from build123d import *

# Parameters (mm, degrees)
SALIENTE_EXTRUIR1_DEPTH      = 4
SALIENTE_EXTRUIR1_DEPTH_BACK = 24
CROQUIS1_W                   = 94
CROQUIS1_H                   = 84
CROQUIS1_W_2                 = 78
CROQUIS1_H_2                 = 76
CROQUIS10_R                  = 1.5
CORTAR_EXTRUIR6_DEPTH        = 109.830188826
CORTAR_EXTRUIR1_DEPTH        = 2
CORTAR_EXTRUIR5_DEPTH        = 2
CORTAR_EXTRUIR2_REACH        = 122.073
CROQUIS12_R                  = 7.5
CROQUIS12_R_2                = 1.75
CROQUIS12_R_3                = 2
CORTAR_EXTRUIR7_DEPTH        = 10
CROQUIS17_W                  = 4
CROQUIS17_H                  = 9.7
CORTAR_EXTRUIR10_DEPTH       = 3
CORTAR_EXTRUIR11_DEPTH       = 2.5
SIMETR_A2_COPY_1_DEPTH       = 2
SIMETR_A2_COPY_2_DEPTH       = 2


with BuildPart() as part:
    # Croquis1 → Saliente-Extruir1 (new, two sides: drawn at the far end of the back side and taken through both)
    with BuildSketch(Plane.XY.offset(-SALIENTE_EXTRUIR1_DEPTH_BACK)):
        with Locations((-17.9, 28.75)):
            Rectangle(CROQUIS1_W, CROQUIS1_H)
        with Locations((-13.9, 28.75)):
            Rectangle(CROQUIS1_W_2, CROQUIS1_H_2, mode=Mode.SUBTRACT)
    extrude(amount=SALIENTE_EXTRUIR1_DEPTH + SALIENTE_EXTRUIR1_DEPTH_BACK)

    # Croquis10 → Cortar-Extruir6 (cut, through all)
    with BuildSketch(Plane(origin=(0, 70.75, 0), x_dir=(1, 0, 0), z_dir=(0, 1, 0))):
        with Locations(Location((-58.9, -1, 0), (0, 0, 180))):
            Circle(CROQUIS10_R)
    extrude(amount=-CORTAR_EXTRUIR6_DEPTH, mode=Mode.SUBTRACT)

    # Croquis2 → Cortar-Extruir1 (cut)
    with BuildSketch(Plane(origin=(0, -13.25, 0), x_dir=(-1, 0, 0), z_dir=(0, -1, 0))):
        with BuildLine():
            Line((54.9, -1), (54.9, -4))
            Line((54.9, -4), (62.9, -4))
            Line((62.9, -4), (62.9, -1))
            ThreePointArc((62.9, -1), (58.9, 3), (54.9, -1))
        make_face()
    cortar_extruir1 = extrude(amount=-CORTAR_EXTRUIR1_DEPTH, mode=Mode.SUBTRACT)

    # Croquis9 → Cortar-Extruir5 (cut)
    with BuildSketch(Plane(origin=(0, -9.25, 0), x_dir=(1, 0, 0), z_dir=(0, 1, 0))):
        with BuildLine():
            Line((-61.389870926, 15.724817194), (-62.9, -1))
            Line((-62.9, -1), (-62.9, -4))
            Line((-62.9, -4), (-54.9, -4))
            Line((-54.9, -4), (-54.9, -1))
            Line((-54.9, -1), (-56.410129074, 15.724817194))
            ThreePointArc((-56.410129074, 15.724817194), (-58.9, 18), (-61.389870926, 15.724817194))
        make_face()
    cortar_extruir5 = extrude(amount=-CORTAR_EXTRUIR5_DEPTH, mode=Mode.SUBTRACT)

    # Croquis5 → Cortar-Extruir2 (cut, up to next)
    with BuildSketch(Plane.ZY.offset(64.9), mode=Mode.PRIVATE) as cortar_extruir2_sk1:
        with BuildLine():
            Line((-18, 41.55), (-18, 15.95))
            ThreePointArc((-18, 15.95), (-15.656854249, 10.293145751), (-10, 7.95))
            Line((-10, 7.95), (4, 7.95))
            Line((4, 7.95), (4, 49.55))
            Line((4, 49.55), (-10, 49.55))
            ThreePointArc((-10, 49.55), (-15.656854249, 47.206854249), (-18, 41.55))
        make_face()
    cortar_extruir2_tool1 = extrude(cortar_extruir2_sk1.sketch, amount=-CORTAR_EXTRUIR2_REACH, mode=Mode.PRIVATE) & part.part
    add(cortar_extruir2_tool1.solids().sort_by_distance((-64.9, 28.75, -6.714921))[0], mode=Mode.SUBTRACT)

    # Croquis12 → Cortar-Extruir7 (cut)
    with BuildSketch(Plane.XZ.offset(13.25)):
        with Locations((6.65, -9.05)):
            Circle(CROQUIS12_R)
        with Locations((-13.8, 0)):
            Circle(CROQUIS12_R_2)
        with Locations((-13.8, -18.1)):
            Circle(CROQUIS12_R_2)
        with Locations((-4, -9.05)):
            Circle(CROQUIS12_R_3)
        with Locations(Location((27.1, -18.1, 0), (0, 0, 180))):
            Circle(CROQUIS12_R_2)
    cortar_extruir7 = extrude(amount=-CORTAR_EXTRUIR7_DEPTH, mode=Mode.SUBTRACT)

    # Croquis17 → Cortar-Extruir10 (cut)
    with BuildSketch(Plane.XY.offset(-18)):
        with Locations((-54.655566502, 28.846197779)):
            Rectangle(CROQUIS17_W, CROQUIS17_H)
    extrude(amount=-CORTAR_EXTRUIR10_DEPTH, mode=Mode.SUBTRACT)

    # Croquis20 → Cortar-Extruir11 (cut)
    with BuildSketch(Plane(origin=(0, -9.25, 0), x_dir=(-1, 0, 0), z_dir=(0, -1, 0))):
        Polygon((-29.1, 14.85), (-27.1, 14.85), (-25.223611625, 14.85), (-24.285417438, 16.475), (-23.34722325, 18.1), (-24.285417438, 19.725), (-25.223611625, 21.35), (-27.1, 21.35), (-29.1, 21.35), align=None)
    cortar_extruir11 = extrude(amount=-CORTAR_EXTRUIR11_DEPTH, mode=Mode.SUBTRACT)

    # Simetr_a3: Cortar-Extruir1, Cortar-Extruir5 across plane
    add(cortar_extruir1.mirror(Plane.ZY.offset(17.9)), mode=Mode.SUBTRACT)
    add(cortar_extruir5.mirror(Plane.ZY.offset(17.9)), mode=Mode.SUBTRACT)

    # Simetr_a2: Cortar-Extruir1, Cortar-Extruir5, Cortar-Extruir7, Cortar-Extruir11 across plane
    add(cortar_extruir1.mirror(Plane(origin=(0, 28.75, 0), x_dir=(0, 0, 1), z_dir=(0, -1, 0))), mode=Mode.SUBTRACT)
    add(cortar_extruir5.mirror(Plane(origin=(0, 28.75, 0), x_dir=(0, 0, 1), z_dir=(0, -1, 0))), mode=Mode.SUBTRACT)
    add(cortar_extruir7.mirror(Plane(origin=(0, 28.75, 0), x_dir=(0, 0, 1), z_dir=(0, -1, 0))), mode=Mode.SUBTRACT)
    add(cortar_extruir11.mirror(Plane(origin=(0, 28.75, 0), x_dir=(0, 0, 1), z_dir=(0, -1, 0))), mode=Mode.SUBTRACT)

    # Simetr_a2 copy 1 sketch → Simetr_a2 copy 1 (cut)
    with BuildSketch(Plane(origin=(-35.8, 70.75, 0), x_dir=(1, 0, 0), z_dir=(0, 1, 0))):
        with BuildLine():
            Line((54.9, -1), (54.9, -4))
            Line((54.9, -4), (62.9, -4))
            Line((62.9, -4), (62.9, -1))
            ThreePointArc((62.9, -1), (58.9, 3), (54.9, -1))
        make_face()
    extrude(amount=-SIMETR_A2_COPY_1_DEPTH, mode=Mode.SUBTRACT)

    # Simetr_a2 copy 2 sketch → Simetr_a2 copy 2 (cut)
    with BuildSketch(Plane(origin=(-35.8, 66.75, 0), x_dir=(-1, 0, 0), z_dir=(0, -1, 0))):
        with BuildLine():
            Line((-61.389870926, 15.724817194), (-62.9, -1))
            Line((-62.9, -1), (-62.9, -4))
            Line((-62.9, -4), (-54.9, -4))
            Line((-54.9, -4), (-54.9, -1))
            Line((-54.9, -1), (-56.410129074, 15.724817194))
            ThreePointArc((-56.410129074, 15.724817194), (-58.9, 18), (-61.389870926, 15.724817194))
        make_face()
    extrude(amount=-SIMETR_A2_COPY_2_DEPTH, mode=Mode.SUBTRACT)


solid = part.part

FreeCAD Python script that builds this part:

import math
import FreeCAD as App
import Part
import Sketcher
from FreeCAD import Vector
Q = App.Units.Quantity


def add_polygon(sketch, points):
    """Adds a closed chain of lines whose ends are joined by coincident constraints."""
    first, n = sketch.GeometryCount, len(points)
    for a, b in zip(points, points[1:] + points[:1]):
        sketch.addGeometry(Part.LineSegment(App.Vector(*a, 0), App.Vector(*b, 0)), False)
    for i in range(n):
        sketch.addConstraint(Sketcher.Constraint("Coincident", first + i, 2, first + (i + 1) % n, 1))

doc = App.newDocument("Part")
body = doc.addObject("PartDesign::Body", "Body")

sketch1 = body.newObject("Sketcher::SketchObject", "Sketch")
sketch1.AttachmentSupport = (doc.getObject("XY_Plane"), [""])
sketch1.MapMode = "FlatFace"
add_polygon(sketch1, [(-64.9, 70.75), (-64.9, -13.25), (29.1, -13.25), (29.1, 70.75)])
add_polygon(sketch1, [(25.1, -9.25), (-52.9, -9.25), (-52.9, 66.75), (25.1, 66.75)])
sketch1.addConstraint(Sketcher.Constraint("Vertical", 0))
sketch1.addConstraint(Sketcher.Constraint("Horizontal", 1))
sketch1.addConstraint(Sketcher.Constraint("Vertical", 2))
sketch1.addConstraint(Sketcher.Constraint("Horizontal", 3))
sketch1.addConstraint(Sketcher.Constraint("Horizontal", 4))
sketch1.addConstraint(Sketcher.Constraint("Vertical", 5))
sketch1.addConstraint(Sketcher.Constraint("Horizontal", 6))
sketch1.addConstraint(Sketcher.Constraint("Vertical", 7))
sketch1.addConstraint(Sketcher.Constraint("DistanceX", 1, 1, 1, 2, Q("94 mm")))
sketch1.addConstraint(Sketcher.Constraint("DistanceX", 4, 2, 4, 1, Q("78 mm")))
sketch1.addConstraint(Sketcher.Constraint("DistanceY", 0, 2, 0, 1, Q("84 mm")))
sketch1.addConstraint(Sketcher.Constraint("DistanceY", 5, 1, 5, 2, Q("76 mm")))
sketch1.addConstraint(Sketcher.Constraint("DistanceX", 0, 2, 4, 2, Q("12 mm")))
sketch1.addConstraint(Sketcher.Constraint("DistanceY", 0, 2, 4, 2, Q("4 mm")))
sketch1.addConstraint(Sketcher.Constraint("DistanceX", 0, 2, -1, 1, Q("64.9 mm")))
sketch1.addConstraint(Sketcher.Constraint("DistanceY", 0, 2, -1, 1, Q("13.25 mm")))
pad1 = body.newObject("PartDesign::Pad", "Pad")
pad1.Profile = sketch1
pad1.Type = "TwoLengths"
pad1.Length = 4
pad1.Length2 = 24

sketch2 = body.newObject("Sketcher::SketchObject", "Sketch001")
sketch2.AttachmentSupport = (doc.getObject("XZ_Plane"), [""])
sketch2.MapMode = "FlatFace"
sketch2.AttachmentOffset = App.Placement(Vector(0, 0, -70.75), App.Rotation())
sketch2.addGeometry(Part.Circle(Vector(-58.9, 1, 0), Vector(0, 0, 1), 1.5), False)
sketch2.addConstraint(Sketcher.Constraint("Diameter", 0, Q("3 mm")))
sketch2.addConstraint(Sketcher.Constraint("DistanceY", -1, 1, 0, 3, Q("1 mm")))
sketch2.addConstraint(Sketcher.Constraint("DistanceX", 0, 3, -1, 1, Q("58.9 mm")))
pocket1 = body.newObject("PartDesign::Pocket", "Pocket")
pocket1.Profile = sketch2
pocket1.Type = "ThroughAll"
pocket1.Reversed = True

sketch3 = body.newObject("Sketcher::SketchObject", "Sketch002")
sketch3.AttachmentSupport = (doc.getObject("XZ_Plane"), [""])
sketch3.MapMode = "FlatFace"
sketch3.AttachmentOffset = App.Placement(Vector(0, 0, 13.25), App.Rotation())
sketch3.addGeometry(Part.LineSegment(Vector(-54.9, 1, 0), Vector(-54.9, 4, 0)), False)
sketch3.addGeometry(Part.LineSegment(Vector(-54.9, 4, 0), Vector(-62.9, 4, 0)), False)
sketch3.addGeometry(Part.LineSegment(Vector(-62.9, 4, 0), Vector(-62.9, 1, 0)), False)
sketch3.addGeometry(Part.ArcOfCircle(Part.Circle(Vector(-58.9, 1, 0), Vector(0, 0, 1), 4), math.radians(180), math.radians(360)), False)
sketch3.addConstraint(Sketcher.Constraint("Coincident", 0, 2, 1, 1))
sketch3.addConstraint(Sketcher.Constraint("Coincident", 1, 2, 2, 1))
sketch3.addConstraint(Sketcher.Constraint("Tangent", 2, 2, 3, 1))
sketch3.addConstraint(Sketcher.Constraint("Tangent", 3, 2, 0, 1))
sketch3.addConstraint(Sketcher.Constraint("Vertical", 0))
sketch3.addConstraint(Sketcher.Constraint("Horizontal", 1))
sketch3.addConstraint(Sketcher.Constraint("Vertical", 2))
sketch3.addConstraint(Sketcher.Constraint("Radius", 3, Q("4 mm")))
sketch3.addConstraint(Sketcher.Constraint("DistanceY", 0, 1, 0, 2, Q("3 mm")))
sketch3.addConstraint(Sketcher.Constraint("DistanceY", -1, 1, 3, 3, Q("1 mm")))
sketch3.addConstraint(Sketcher.Constraint("DistanceX", 3, 3, -1, 1, Q("58.9 mm")))
pocket2 = body.newObject("PartDesign::Pocket", "Pocket001")
pocket2.Profile = sketch3
pocket2.Length = 2

sketch4 = body.newObject("Sketcher::SketchObject", "Sketch003")
sketch4.AttachmentSupport = (doc.getObject("XZ_Plane"), [""])
sketch4.MapMode = "FlatFace"
sketch4.AttachmentOffset = App.Placement(Vector(0, 0, 9.25), App.Rotation())
sketch4.addGeometry(Part.LineSegment(Vector(-61.389871, -15.724817, 0), Vector(-62.9, 1, 0)), False)
sketch4.addGeometry(Part.LineSegment(Vector(-62.9, 1, 0), Vector(-62.9, 4, 0)), False)
sketch4.addGeometry(Part.LineSegment(Vector(-62.9, 4, 0), Vector(-54.9, 4, 0)), False)
sketch4.addGeometry(Part.LineSegment(Vector(-54.9, 4, 0), Vector(-54.9, 1, 0)), False)
sketch4.addGeometry(Part.LineSegment(Vector(-54.9, 1, 0), Vector(-56.410129, -15.724817, 0)), False)
sketch4.addGeometry(Part.ArcOfCircle(Part.Circle(Vector(-58.9, -15.5, 0), Vector(0, 0, 1), 2.5), math.radians(-174.8406), math.radians(-5.1594)), False)
sketch4.addConstraint(Sketcher.Constraint("Coincident", 0, 2, 1, 1))
sketch4.addConstraint(Sketcher.Constraint("Coincident", 1, 2, 2, 1))
sketch4.addConstraint(Sketcher.Constraint("Coincident", 2, 2, 3, 1))
sketch4.addConstraint(Sketcher.Constraint("Coincident", 3, 2, 4, 1))
sketch4.addConstraint(Sketcher.Constraint("Tangent", 4, 2, 5, 2))
sketch4.addConstraint(Sketcher.Constraint("Tangent", 5, 1, 0, 1))
sketch4.addConstraint(Sketcher.Constraint("Vertical", 1))
sketch4.addConstraint(Sketcher.Constraint("Horizontal", 2))
sketch4.addConstraint(Sketcher.Constraint("Vertical", 3))
sketch4.addConstraint(Sketcher.Constraint("Horizontal", 0, 2, 3, 2))
sketch4.addConstraint(Sketcher.Constraint("Horizontal", 4, 2, 5, 1))
sketch4.addConstraint(Sketcher.Constraint("Radius", 5, Q("2.5 mm")))
sketch4.addConstraint(Sketcher.Constraint("DistanceX", 2, 1, 2, 2, Q("8 mm")))
sketch4.addConstraint(Sketcher.Constraint("DistanceY", 1, 1, 1, 2, Q("3 mm")))
sketch4.addConstraint(Sketcher.Constraint("DistanceY", -1, 1, 0, 2, Q("1 mm")))
sketch4.addConstraint(Sketcher.Constraint("DistanceX", 5, 3, -1, 1, Q("58.9 mm")))
sketch4.addConstraint(Sketcher.Constraint("DistanceY", 5, 3, -1, 1, Q("15.5 mm")))
pocket3 = body.newObject("PartDesign::Pocket", "Pocket002")
pocket3.Profile = sketch4
pocket3.Length = 2
pocket3.Reversed = True

sketch5 = body.newObject("Sketcher::SketchObject", "Sketch004")
sketch5.AttachmentSupport = (doc.getObject("YZ_Plane"), [""])
sketch5.MapMode = "FlatFace"
sketch5.AttachmentOffset = App.Placement(Vector(0, 0, -64.9), App.Rotation())
sketch5.addGeometry(Part.LineSegment(Vector(41.55, -18, 0), Vector(15.95, -18, 0)), False)
sketch5.addGeometry(Part.ArcOfCircle(Part.Circle(Vector(15.95, -10, 0), Vector(0, 0, 1), 8), math.radians(-180), math.radians(-90)), False)
sketch5.addGeometry(Part.LineSegment(Vector(7.95, -10, 0), Vector(7.95, 4, 0)), False)
sketch5.addGeometry(Part.LineSegment(Vector(7.95, 4, 0), Vector(49.55, 4, 0)), False)
sketch5.addGeometry(Part.LineSegment(Vector(49.55, 4, 0), Vector(49.55, -10, 0)), False)
sketch5.addGeometry(Part.ArcOfCircle(Part.Circle(Vector(41.55, -10, 0), Vector(0, 0, 1), 8), math.radians(-90), math.radians(0)), False)
sketch5.addConstraint(Sketcher.Constraint("Tangent", 0, 2, 1, 2))
sketch5.addConstraint(Sketcher.Constraint("Tangent", 1, 1, 2, 1))
sketch5.addConstraint(Sketcher.Constraint("Coincident", 2, 2, 3, 1))
sketch5.addConstraint(Sketcher.Constraint("Coincident", 3, 2, 4, 1))
sketch5.addConstraint(Sketcher.Constraint("Tangent", 4, 2, 5, 2))
sketch5.addConstraint(Sketcher.Constraint("Tangent", 5, 1, 0, 1))
sketch5.addConstraint(Sketcher.Constraint("Horizontal", 0))
sketch5.addConstraint(Sketcher.Constraint("Vertical", 2))
sketch5.addConstraint(Sketcher.Constraint("Horizontal", 3))
sketch5.addConstraint(Sketcher.Constraint("Vertical", 4))
sketch5.addConstraint(Sketcher.Constraint("Equal", 1, 5))
sketch5.addConstraint(Sketcher.Constraint("Radius", 1, Q("8 mm")))
sketch5.addConstraint(Sketcher.Constraint("DistanceY", 2, 1, 2, 2, Q("14 mm")))
sketch5.addConstraint(Sketcher.Constraint("DistanceX", 0, 2, 0, 1, Q("25.6 mm")))
sketch5.addConstraint(Sketcher.Constraint("DistanceY", 1, 3, -1, 1, Q("10 mm")))
sketch5.addConstraint(Sketcher.Constraint("DistanceX", -1, 1, 1, 3, Q("15.95 mm")))
pocket4 = body.newObject("PartDesign::Pocket", "Pocket003")
pocket4.Profile = sketch5
pocket4.Type = "UpToFirst"
pocket4.Reversed = True

sketch6 = body.newObject("Sketcher::SketchObject", "Sketch005")
sketch6.AttachmentSupport = (doc.getObject("XZ_Plane"), [""])
sketch6.MapMode = "FlatFace"
sketch6.AttachmentOffset = App.Placement(Vector(0, 0, 13.25), App.Rotation())
sketch6.addGeometry(Part.Circle(Vector(6.65, -9.05, 0), Vector(0, 0, 1), 7.5), False)
sketch6.addGeometry(Part.Circle(Vector(-13.8, 0, 0), Vector(0, 0, 1), 1.75), False)
sketch6.addGeometry(Part.Circle(Vector(-13.8, -18.1, 0), Vector(0, 0, 1), 1.75), False)
sketch6.addGeometry(Part.Circle(Vector(-4, -9.05, 0), Vector(0, 0, 1), 2), False)
sketch6.addGeometry(Part.Circle(Vector(27.1, -18.1, 0), Vector(0, 0, 1), 1.75), False)
sketch6.addConstraint(Sketcher.Constraint("Equal", 1, 2))
sketch6.addConstraint(Sketcher.Constraint("Equal", 2, 4))
sketch6.addConstraint(Sketcher.Constraint("PointOnObject", 1, 3, -1))
sketch6.addConstraint(Sketcher.Constraint("Horizontal", 0, 3, 3, 3))
sketch6.addConstraint(Sketcher.Constraint("Horizontal", 2, 3, 4, 3))
sketch6.addConstraint(Sketcher.Constraint("Vertical", 1, 3, 2, 3))
sketch6.addConstraint(Sketcher.Constraint("Diameter", 0, Q("15 mm")))
sketch6.addConstraint(Sketcher.Constraint("Diameter", 3, Q("4 mm")))
sketch6.addConstraint(Sketcher.Constraint("Diameter", 1, Q("3.5 mm")))
sketch6.addConstraint(Sketcher.Constraint("DistanceX", 3, 3, -1, 1, Q("4 mm")))
sketch6.addConstraint(Sketcher.Constraint("DistanceX", 1, 3, -1, 1, Q("13.8 mm")))
sketch6.addConstraint(Sketcher.Constraint("DistanceY", 2, 3, -1, 1, Q("18.1 mm")))
sketch6.addConstraint(Sketcher.Constraint("DistanceX", -1, 1, 4, 3, Q("27.1 mm")))
sketch6.addConstraint(Sketcher.Constraint("DistanceX", -1, 1, 0, 3, Q("6.65 mm")))
sketch6.addConstraint(Sketcher.Constraint("DistanceY", 0, 3, -1, 1, Q("9.05 mm")))
pocket5 = body.newObject("PartDesign::Pocket", "Pocket004")
pocket5.Profile = sketch6
pocket5.Length = 10

sketch7 = body.newObject("Sketcher::SketchObject", "Sketch006")
sketch7.AttachmentSupport = (doc.getObject("XY_Plane"), [""])
sketch7.MapMode = "FlatFace"
sketch7.AttachmentOffset = App.Placement(Vector(0, 0, -18), App.Rotation())
add_polygon(sketch7, [(-56.655567, 33.696198), (-56.655567, 23.996198), (-52.655567, 23.996198), (-52.655567, 33.696198)])
sketch7.addConstraint(Sketcher.Constraint("Vertical", 0))
sketch7.addConstraint(Sketcher.Constraint("Horizontal", 1))
sketch7.addConstraint(Sketcher.Constraint("Vertical", 2))
sketch7.addConstraint(Sketcher.Constraint("Horizontal", 3))
sketch7.addConstraint(Sketcher.Constraint("DistanceX", 1, 1, 1, 2, Q("4 mm")))
sketch7.addConstraint(Sketcher.Constraint("DistanceY", 0, 2, 0, 1, Q("9.7 mm")))
sketch7.addConstraint(Sketcher.Constraint("DistanceX", 0, 2, -1, 1, Q("56.655567 mm")))
sketch7.addConstraint(Sketcher.Constraint("DistanceY", -1, 1, 0, 2, Q("23.996198 mm")))
pocket6 = body.newObject("PartDesign::Pocket", "Pocket005")
pocket6.Profile = sketch7
pocket6.Length = 3

sketch8 = body.newObject("Sketcher::SketchObject", "Sketch007")
sketch8.AttachmentSupport = (doc.getObject("XZ_Plane"), [""])
sketch8.MapMode = "FlatFace"
sketch8.AttachmentOffset = App.Placement(Vector(0, 0, 9.25), App.Rotation())
add_polygon(sketch8, [(29.1, -14.85), (25.223612, -14.85), (24.285417, -16.475), (23.347223, -18.1), (24.285417, -19.725), (25.223612, -21.35), (29.1, -21.35)])
sketch8.addConstraint(Sketcher.Constraint("Horizontal", 0))
sketch8.addConstraint(Sketcher.Constraint("Horizontal", 5))
sketch8.addConstraint(Sketcher.Constraint("Vertical", 6))
sketch8.addConstraint(Sketcher.Constraint("Parallel", 1, 2))
sketch8.addConstraint(Sketcher.Constraint("Parallel", 3, 4))
sketch8.addConstraint(Sketcher.Constraint("Vertical", 1, 2, 3, 2))
sketch8.addConstraint(Sketcher.Constraint("Vertical", 0, 2, 4, 2))
sketch8.addConstraint(Sketcher.Constraint("Equal", 1, 2))
sketch8.addConstraint(Sketcher.Constraint("Equal", 2, 3))
sketch8.addConstraint(Sketcher.Constraint("Angle", 1, Q("-120 deg")))
sketch8.addConstraint(Sketcher.Constraint("DistanceY", 6, 1, 6, 2, Q("6.5 mm")))
sketch8.addConstraint(Sketcher.Constraint("DistanceY", 2, 2, -1, 1, Q("18.1 mm")))
sketch8.addConstraint(Sketcher.Constraint("DistanceX", -1, 1, 5, 2, Q("29.1 mm")))
sketch8.addConstraint(Sketcher.Constraint("DistanceX", 0, 2, 0, 1, Q("3.876388 mm")))
pocket7 = body.newObject("PartDesign::Pocket", "Pocket006")
pocket7.Profile = sketch8
pocket7.Length = 2.5
doc.recompute()

datumplane = body.newObject("PartDesign::Plane", "DatumPlane")
datumplane.AttachmentSupport = (doc.getObject("YZ_Plane"), [""])
datumplane.MapMode = "FlatFace"
datumplane.AttachmentOffset = App.Placement(Vector(0, 0, -17.9), App.Rotation())
mirrored = body.newObject("PartDesign::Mirrored", "Mirrored")
mirrored.Originals = [pocket2, pocket3]
mirrored.MirrorPlane = (datumplane, [""])
body.Tip = mirrored
doc.recompute()

datumplane2 = body.newObject("PartDesign::Plane", "DatumPlane001")
datumplane2.AttachmentSupport = (doc.getObject("XZ_Plane"), [""])
datumplane2.MapMode = "FlatFace"
datumplane2.AttachmentOffset = App.Placement(Vector(0, 0, -28.75), App.Rotation())
mirrored2 = body.newObject("PartDesign::Mirrored", "Mirrored001")
mirrored2.Originals = [pocket2, pocket3, pocket5, pocket7]
mirrored2.MirrorPlane = (datumplane2, [""])
body.Tip = mirrored2

sketch9 = body.newObject("Sketcher::SketchObject", "Sketch008")
sketch9.AttachmentSupport = (doc.getObject("XZ_Plane"), [""])
sketch9.MapMode = "FlatFace"
sketch9.AttachmentOffset = App.Placement(Vector(0, 0, -70.75), App.Rotation())
sketch9.addGeometry(Part.LineSegment(Vector(19.1, 1, 0), Vector(19.1, 4, 0)), False)
sketch9.addGeometry(Part.LineSegment(Vector(19.1, 4, 0), Vector(27.1, 4, 0)), False)
sketch9.addGeometry(Part.LineSegment(Vector(27.1, 4, 0), Vector(27.1, 1, 0)), False)
sketch9.addGeometry(Part.ArcOfCircle(Part.Circle(Vector(23.1, 1, 0), Vector(0, 0, 1), 4), math.radians(180), math.radians(360)), False)
sketch9.addConstraint(Sketcher.Constraint("Coincident", 0, 2, 1, 1))
sketch9.addConstraint(Sketcher.Constraint("Coincident", 1, 2, 2, 1))
sketch9.addConstraint(Sketcher.Constraint("Tangent", 2, 2, 3, 2))
sketch9.addConstraint(Sketcher.Constraint("Tangent", 3, 1, 0, 1))
sketch9.addConstraint(Sketcher.Constraint("Vertical", 0))
sketch9.addConstraint(Sketcher.Constraint("Horizontal", 1))
sketch9.addConstraint(Sketcher.Constraint("Vertical", 2))
sketch9.addConstraint(Sketcher.Constraint("Radius", 3, Q("4 mm")))
sketch9.addConstraint(Sketcher.Constraint("DistanceY", 0, 1, 0, 2, Q("3 mm")))
sketch9.addConstraint(Sketcher.Constraint("DistanceY", -1, 1, 3, 3, Q("1 mm")))
sketch9.addConstraint(Sketcher.Constraint("DistanceX", -1, 1, 3, 3, Q("23.1 mm")))
pocket8 = body.newObject("PartDesign::Pocket", "Pocket007")
pocket8.Profile = sketch9
pocket8.Length = 2
pocket8.Reversed = True

sketch10 = body.newObject("Sketcher::SketchObject", "Sketch009")
sketch10.AttachmentSupport = (doc.getObject("XZ_Plane"), [""])
sketch10.MapMode = "FlatFace"
sketch10.AttachmentOffset = App.Placement(Vector(0, 0, -66.75), App.Rotation())
sketch10.addGeometry(Part.LineSegment(Vector(25.589871, -15.724817, 0), Vector(27.1, 1, 0)), False)
sketch10.addGeometry(Part.LineSegment(Vector(27.1, 1, 0), Vector(27.1, 4, 0)), False)
sketch10.addGeometry(Part.LineSegment(Vector(27.1, 4, 0), Vector(19.1, 4, 0)), False)
sketch10.addGeometry(Part.LineSegment(Vector(19.1, 4, 0), Vector(19.1, 1, 0)), False)
sketch10.addGeometry(Part.LineSegment(Vector(19.1, 1, 0), Vector(20.610129, -15.724817, 0)), False)
sketch10.addGeometry(Part.ArcOfCircle(Part.Circle(Vector(23.1, -15.5, 0), Vector(0, 0, 1), 2.5), math.radians(-174.8406), math.radians(-5.1594)), False)
sketch10.addConstraint(Sketcher.Constraint("Coincident", 0, 2, 1, 1))
sketch10.addConstraint(Sketcher.Constraint("Coincident", 1, 2, 2, 1))
sketch10.addConstraint(Sketcher.Constraint("Coincident", 2, 2, 3, 1))
sketch10.addConstraint(Sketcher.Constraint("Coincident", 3, 2, 4, 1))
sketch10.addConstraint(Sketcher.Constraint("Tangent", 4, 2, 5, 1))
sketch10.addConstraint(Sketcher.Constraint("Tangent", 5, 2, 0, 1))
sketch10.addConstraint(Sketcher.Constraint("Vertical", 1))
sketch10.addConstraint(Sketcher.Constraint("Horizontal", 2))
sketch10.addConstraint(Sketcher.Constraint("Vertical", 3))
sketch10.addConstraint(Sketcher.Constraint("Horizontal", 0, 2, 3, 2))
sketch10.addConstraint(Sketcher.Constraint("Horizontal", 4, 2, 5, 2))
sketch10.addConstraint(Sketcher.Constraint("Radius", 5, Q("2.5 mm")))
sketch10.addConstraint(Sketcher.Constraint("DistanceX", 2, 2, 2, 1, Q("8 mm")))
sketch10.addConstraint(Sketcher.Constraint("DistanceY", 1, 1, 1, 2, Q("3 mm")))
sketch10.addConstraint(Sketcher.Constraint("DistanceY", -1, 1, 0, 2, Q("1 mm")))
sketch10.addConstraint(Sketcher.Constraint("DistanceX", -1, 1, 5, 3, Q("23.1 mm")))
sketch10.addConstraint(Sketcher.Constraint("DistanceY", 5, 3, -1, 1, Q("15.5 mm")))
pocket9 = body.newObject("PartDesign::Pocket", "Pocket008")
pocket9.Profile = sketch10
pocket9.Length = 2

doc.recompute()
